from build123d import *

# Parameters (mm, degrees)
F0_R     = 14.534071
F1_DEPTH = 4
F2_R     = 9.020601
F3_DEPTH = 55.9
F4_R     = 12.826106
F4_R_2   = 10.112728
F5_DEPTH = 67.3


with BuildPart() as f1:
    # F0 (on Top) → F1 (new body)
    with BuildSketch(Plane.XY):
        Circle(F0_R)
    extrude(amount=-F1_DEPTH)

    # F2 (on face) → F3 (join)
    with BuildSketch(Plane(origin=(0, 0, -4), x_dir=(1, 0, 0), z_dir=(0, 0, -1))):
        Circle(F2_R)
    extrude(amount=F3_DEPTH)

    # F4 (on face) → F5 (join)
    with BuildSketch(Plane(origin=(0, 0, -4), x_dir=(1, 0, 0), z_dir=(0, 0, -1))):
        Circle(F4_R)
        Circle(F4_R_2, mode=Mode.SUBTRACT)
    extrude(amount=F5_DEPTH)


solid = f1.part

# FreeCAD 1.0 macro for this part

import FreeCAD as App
import Part
import Sketcher
from FreeCAD import Vector
Q = App.Units.Quantity

doc = App.newDocument("Part")
body = doc.addObject("PartDesign::Body", "Body")

sketch1 = body.newObject("Sketcher::SketchObject", "Sketch")
sketch1.AttachmentSupport = (doc.getObject("XY_Plane"), [""])
sketch1.MapMode = "FlatFace"
sketch1.addGeometry(Part.Circle(Vector(0, 0, 0), Vector(0, 0, 1), 14.534071), False)
sketch1.addConstraint([
    Sketcher.Constraint("Coincident", 0, 3, -1, 1),
    Sketcher.Constraint("Diameter", 0, Q("29.068142 mm")),
])
pad1 = body.newObject("PartDesign::Pad", "Pad")
pad1.Profile = sketch1
pad1.Length = 4
pad1.Reversed = True

sketch2 = body.newObject("Sketcher::SketchObject", "Sketch001")
sketch2.AttachmentSupport = (doc.getObject("XY_Plane"), [""])
sketch2.MapMode = "FlatFace"
sketch2.AttachmentOffset = App.Placement(Vector(0, 0, -4), App.Rotation())
sketch2.addGeometry(Part.Circle(Vector(0, 0, 0), Vector(0, 0, 1), 9.020601), False)
sketch2.addConstraint([
    Sketcher.Constraint("Coincident", 0, 3, -1, 1),
    Sketcher.Constraint("Diameter", 0, Q("18.041202 mm")),
])
pad2 = body.newObject("PartDesign::Pad", "Pad001")
pad2.Profile = sketch2
pad2.Length = 55.9
pad2.Reversed = True

sketch3 = body.newObject("Sketcher::SketchObject", "Sketch002")
sketch3.AttachmentSupport = (doc.getObject("XY_Plane"), [""])
sketch3.MapMode = "FlatFace"
sketch3.AttachmentOffset = App.Placement(Vector(0, 0, -4), App.Rotation())
sketch3.addGeometry([
    Part.Circle(Vector(0, 0, 0), Vector(0, 0, 1), 12.826106),
    Part.Circle(Vector(0, 0, 0), Vector(0, 0, 1), 10.112728),
], False)
sketch3.addConstraint([
    Sketcher.Constraint("Coincident", 0, 3, -1, 1),
    Sketcher.Constraint("Coincident", 1, 3, -1, 1),
    Sketcher.Constraint("Diameter", 0, Q("25.652212 mm")),
    Sketcher.Constraint("Diameter", 1, Q("20.225456 mm")),
])
pad3 = body.newObject("PartDesign::Pad", "Pad002")
pad3.Profile = sketch3
pad3.Length = 67.3
pad3.Reversed = True

doc.recompute()
